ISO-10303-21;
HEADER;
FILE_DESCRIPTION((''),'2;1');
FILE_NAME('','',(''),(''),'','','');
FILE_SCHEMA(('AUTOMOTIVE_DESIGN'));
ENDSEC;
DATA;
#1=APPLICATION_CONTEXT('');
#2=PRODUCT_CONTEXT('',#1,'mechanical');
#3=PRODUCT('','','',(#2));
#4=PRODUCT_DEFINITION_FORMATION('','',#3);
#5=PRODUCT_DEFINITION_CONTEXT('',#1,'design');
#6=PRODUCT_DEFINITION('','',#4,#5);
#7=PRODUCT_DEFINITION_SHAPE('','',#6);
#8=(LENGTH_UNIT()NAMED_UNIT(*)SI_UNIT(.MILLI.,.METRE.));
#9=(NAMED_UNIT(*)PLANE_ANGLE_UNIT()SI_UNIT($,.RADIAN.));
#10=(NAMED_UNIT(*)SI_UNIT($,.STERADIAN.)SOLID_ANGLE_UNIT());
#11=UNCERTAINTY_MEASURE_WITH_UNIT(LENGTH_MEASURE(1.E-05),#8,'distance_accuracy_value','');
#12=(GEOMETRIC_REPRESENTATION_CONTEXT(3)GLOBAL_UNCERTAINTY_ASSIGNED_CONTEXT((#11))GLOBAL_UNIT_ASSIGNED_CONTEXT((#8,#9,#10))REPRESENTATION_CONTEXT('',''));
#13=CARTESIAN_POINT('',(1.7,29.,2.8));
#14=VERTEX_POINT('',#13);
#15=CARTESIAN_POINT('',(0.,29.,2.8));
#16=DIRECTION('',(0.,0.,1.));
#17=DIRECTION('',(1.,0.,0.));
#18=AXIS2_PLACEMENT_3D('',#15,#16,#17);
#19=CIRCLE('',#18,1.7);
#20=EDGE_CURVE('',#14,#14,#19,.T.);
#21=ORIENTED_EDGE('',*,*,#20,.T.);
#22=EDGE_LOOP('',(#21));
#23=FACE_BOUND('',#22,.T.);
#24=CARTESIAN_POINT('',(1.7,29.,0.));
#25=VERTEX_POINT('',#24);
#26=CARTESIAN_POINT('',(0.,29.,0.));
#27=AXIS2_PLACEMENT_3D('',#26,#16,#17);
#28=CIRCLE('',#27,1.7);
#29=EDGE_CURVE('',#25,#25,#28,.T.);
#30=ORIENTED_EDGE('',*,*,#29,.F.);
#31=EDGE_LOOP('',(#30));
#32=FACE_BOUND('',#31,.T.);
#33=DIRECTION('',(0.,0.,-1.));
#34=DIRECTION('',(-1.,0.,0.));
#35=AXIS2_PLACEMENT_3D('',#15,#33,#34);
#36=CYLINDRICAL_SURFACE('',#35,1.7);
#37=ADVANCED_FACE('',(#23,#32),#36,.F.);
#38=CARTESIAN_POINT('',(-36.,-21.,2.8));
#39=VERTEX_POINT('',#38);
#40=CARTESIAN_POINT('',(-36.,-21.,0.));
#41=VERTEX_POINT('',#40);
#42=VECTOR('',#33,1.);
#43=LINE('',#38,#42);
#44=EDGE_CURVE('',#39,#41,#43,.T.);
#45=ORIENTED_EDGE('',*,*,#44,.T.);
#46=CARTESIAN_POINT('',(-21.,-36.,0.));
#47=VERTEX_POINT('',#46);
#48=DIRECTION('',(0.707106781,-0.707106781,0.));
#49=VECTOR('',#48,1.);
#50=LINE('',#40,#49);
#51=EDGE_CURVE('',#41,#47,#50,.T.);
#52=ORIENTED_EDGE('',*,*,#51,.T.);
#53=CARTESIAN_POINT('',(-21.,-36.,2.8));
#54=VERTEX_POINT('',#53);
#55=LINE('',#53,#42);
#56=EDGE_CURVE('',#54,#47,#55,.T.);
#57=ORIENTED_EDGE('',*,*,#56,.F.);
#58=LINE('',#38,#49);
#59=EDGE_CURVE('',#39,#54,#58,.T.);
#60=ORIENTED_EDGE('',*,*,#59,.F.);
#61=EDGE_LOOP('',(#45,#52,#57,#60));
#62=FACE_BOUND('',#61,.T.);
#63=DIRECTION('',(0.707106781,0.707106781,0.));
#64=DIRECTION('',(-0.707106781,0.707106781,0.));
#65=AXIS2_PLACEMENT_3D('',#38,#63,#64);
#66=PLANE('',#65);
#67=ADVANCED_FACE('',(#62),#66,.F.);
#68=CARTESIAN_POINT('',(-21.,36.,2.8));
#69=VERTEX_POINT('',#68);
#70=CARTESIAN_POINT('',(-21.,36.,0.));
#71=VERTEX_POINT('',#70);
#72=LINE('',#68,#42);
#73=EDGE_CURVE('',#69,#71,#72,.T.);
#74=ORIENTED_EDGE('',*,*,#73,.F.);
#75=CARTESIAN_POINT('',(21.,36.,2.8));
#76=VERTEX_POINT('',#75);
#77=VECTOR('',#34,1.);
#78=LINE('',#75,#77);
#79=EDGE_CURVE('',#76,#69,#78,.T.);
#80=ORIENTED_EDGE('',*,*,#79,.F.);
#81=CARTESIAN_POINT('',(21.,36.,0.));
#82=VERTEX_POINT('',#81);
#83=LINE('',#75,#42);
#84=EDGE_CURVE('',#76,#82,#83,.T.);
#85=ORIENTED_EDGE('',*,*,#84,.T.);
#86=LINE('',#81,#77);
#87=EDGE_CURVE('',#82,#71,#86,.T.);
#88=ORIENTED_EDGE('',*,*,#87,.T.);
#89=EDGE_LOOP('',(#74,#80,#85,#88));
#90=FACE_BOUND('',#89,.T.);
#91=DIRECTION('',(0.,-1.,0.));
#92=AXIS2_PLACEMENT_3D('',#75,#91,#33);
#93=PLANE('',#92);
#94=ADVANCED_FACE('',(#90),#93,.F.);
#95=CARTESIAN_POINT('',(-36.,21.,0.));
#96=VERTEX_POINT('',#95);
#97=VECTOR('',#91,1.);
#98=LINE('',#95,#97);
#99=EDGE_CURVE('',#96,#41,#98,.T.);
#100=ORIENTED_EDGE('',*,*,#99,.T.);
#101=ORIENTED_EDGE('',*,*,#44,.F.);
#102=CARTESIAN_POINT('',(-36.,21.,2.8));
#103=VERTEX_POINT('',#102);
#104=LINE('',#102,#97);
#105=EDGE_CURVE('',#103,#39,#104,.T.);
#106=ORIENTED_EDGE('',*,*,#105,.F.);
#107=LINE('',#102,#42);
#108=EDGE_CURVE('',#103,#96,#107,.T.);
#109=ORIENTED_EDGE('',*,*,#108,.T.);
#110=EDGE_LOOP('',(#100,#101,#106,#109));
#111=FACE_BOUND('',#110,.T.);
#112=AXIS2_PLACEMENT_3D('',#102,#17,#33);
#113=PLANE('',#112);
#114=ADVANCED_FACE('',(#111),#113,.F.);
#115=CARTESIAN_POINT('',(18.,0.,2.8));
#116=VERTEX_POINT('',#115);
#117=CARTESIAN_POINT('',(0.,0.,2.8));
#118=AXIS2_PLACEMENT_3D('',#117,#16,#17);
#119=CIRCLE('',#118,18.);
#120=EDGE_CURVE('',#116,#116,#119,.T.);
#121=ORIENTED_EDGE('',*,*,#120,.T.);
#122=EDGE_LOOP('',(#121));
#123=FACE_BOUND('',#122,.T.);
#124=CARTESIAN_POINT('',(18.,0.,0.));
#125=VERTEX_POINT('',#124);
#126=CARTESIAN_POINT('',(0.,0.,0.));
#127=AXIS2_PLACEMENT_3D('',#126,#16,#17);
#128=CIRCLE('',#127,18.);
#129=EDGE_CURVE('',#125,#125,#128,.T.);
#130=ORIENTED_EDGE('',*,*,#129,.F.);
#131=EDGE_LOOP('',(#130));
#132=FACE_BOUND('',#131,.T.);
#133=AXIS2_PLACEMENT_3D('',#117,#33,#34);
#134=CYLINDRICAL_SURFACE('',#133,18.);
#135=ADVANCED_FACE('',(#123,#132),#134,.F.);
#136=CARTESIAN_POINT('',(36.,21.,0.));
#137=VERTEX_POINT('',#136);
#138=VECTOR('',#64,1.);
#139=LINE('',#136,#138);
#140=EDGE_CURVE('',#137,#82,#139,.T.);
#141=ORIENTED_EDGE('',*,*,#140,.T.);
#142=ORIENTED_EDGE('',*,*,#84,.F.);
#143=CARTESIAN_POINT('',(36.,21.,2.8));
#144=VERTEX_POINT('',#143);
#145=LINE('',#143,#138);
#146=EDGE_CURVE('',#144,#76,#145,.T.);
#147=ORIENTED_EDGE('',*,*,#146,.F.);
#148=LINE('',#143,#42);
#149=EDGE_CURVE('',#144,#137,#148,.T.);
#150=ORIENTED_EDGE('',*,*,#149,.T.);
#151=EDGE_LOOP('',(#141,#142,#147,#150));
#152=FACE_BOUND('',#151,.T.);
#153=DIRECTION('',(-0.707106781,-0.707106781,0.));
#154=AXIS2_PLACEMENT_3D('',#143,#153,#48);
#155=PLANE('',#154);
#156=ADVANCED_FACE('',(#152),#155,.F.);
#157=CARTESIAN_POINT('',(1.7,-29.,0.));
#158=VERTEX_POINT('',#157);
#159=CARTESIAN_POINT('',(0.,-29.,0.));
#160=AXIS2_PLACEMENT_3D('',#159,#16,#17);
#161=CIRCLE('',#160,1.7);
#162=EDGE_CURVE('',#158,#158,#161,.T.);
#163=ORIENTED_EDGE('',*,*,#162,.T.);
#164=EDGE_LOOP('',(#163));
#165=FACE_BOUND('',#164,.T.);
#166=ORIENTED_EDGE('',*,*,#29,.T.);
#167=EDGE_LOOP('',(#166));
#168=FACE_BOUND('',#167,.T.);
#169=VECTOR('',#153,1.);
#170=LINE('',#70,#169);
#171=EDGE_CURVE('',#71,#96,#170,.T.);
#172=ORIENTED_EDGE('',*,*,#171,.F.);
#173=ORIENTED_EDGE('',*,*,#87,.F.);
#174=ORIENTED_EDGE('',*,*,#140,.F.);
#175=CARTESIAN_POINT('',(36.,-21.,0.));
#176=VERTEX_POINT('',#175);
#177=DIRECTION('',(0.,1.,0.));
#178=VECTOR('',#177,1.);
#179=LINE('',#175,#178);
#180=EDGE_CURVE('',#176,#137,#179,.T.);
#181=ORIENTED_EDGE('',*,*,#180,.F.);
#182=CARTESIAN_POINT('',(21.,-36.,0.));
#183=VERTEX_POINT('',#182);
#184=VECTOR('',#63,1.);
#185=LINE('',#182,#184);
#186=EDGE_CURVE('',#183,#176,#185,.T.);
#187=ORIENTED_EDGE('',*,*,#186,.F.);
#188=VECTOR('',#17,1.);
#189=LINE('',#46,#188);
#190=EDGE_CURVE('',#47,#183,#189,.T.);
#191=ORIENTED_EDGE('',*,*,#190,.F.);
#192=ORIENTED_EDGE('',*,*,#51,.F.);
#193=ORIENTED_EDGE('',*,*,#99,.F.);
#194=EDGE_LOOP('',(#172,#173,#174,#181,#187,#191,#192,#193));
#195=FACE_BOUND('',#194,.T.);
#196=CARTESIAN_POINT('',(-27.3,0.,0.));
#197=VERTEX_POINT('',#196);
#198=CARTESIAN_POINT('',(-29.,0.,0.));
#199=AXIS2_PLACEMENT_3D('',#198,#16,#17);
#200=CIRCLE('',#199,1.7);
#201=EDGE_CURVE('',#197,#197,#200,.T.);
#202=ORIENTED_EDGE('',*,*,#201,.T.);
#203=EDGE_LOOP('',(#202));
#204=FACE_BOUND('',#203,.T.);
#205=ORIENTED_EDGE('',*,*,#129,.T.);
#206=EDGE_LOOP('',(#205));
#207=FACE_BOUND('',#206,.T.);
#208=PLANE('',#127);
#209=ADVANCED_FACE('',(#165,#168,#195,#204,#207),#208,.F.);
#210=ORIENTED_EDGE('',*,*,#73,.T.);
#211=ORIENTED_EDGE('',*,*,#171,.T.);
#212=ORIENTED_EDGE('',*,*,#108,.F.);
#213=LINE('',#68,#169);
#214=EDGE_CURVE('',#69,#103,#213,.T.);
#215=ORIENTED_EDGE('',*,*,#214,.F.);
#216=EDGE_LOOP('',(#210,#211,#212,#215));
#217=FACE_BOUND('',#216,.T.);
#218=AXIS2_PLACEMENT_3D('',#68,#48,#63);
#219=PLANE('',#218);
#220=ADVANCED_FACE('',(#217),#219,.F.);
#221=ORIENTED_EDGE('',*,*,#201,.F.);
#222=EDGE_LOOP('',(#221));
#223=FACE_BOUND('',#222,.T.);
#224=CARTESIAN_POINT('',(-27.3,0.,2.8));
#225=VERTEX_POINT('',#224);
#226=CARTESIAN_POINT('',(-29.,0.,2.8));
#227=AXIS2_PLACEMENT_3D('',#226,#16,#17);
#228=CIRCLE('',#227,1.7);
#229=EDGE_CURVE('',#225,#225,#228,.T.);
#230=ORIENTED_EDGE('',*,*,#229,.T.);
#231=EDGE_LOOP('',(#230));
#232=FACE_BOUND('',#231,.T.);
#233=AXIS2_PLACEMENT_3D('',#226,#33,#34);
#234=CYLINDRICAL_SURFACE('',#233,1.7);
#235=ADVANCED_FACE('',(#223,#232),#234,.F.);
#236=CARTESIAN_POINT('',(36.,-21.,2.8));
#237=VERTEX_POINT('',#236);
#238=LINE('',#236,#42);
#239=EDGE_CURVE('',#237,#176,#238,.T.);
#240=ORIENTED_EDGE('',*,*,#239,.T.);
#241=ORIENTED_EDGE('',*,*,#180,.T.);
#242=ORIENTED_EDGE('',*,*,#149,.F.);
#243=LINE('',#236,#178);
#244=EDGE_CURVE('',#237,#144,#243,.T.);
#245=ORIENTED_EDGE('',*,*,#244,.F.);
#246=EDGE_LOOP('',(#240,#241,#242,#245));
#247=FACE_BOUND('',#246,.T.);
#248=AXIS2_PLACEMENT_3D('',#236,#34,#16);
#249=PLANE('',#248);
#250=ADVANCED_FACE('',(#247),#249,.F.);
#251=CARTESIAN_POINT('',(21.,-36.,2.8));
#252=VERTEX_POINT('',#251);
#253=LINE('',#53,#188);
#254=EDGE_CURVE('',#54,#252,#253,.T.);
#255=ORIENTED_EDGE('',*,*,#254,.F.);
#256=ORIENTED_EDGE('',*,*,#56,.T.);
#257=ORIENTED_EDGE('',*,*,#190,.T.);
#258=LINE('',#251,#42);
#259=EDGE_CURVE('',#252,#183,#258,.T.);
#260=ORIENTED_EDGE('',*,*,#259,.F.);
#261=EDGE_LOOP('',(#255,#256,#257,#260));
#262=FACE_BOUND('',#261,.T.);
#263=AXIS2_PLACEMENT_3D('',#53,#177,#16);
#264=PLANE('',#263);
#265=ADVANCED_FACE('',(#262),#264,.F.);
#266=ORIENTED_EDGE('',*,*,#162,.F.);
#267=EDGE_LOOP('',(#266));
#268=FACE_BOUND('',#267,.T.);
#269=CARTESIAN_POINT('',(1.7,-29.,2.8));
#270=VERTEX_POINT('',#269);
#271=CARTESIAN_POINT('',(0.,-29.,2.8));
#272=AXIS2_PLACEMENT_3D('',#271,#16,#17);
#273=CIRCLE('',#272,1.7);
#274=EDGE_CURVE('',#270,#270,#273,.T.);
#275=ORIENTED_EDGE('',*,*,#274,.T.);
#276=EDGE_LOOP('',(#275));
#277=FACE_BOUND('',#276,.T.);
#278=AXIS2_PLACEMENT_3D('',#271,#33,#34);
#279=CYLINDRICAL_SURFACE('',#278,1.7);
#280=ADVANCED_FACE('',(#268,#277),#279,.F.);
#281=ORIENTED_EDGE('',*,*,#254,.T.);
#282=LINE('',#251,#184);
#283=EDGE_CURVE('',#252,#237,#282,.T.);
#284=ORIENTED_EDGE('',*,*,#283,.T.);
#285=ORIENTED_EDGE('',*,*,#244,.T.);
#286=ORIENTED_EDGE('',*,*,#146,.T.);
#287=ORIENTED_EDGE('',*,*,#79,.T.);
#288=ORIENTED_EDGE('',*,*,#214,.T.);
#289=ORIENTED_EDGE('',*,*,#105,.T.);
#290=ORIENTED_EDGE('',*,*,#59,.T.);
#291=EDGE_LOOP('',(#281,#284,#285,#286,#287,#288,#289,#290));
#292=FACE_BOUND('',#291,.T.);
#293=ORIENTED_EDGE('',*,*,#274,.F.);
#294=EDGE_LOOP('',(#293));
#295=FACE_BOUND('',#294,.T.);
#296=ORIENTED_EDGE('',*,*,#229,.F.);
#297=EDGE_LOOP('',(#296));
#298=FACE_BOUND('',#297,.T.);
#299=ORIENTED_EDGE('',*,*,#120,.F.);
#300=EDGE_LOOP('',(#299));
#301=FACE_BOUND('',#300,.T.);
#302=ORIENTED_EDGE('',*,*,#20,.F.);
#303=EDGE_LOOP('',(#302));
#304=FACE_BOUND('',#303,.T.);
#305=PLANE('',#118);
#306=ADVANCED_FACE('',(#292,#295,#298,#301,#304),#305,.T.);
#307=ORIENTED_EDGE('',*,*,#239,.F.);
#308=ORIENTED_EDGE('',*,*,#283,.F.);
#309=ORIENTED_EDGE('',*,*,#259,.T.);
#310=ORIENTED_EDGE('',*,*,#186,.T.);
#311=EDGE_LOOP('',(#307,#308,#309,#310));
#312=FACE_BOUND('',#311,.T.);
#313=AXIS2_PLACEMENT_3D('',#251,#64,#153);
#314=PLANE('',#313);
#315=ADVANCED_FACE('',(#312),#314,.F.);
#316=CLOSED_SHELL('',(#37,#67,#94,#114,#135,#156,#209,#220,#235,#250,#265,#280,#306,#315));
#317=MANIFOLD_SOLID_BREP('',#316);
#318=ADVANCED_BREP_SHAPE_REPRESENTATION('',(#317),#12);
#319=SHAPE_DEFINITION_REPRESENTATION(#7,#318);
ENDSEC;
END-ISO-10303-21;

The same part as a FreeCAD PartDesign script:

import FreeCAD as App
import Part
import Sketcher
from FreeCAD import Vector
Q = App.Units.Quantity

doc = App.newDocument("Part")
body = doc.addObject("PartDesign::Body", "Body")

sketch1 = body.newObject("Sketcher::SketchObject", "Sketch")
sketch1.AttachmentSupport = (doc.getObject("XY_Plane"), [""])
sketch1.MapMode = "FlatFace"
sketch1.addGeometry([
    Part.LineSegment(Vector(-21, -36, 0), Vector(21, -36, 0)),
    Part.LineSegment(Vector(21, -36, 0), Vector(36, -21, 0)),
    Part.LineSegment(Vector(36, -21, 0), Vector(36, 21, 0)),
    Part.LineSegment(Vector(36, 21, 0), Vector(21, 36, 0)),
    Part.LineSegment(Vector(21, 36, 0), Vector(-21, 36, 0)),
    Part.LineSegment(Vector(-21, 36, 0), Vector(-36, 21, 0)),
    Part.LineSegment(Vector(-36, 21, 0), Vector(-36, -21, 0)),
    Part.LineSegment(Vector(-36, -21, 0), Vector(-21, -36, 0)),
    Part.Circle(Vector(0, -29, 0), Vector(0, 0, 1), 1.7),
    Part.Circle(Vector(-29, 0, 0), Vector(0, 0, 1), 1.7),
    Part.Circle(Vector(0, 0, 0), Vector(0, 0, 1), 18),
    Part.Circle(Vector(0, 29, 0), Vector(0, 0, 1), 1.7),
], False)
sketch1.addConstraint([
    Sketcher.Constraint("Coincident", 0, 2, 1, 1),
    Sketcher.Constraint("Coincident", 1, 2, 2, 1),
    Sketcher.Constraint("Coincident", 2, 2, 3, 1),
    Sketcher.Constraint("Coincident", 3, 2, 4, 1),
    Sketcher.Constraint("Coincident", 4, 2, 5, 1),
    Sketcher.Constraint("Coincident", 5, 2, 6, 1),
    Sketcher.Constraint("Coincident", 6, 2, 7, 1),
    Sketcher.Constraint("Coincident", 7, 2, 0, 1),
    Sketcher.Constraint("Horizontal", 0),
    Sketcher.Constraint("Vertical", 2),
    Sketcher.Constraint("Horizontal", 4),
    Sketcher.Constraint("Vertical", 6),
    Sketcher.Constraint("Coincident", 10, 3, -1, 1),
    Sketcher.Constraint("Equal", 8, 9),
    Sketcher.Constraint("Equal", 9, 11),
    Sketcher.Constraint("Symmetric", 8, 3, 11, 3, -1, 1),
    Sketcher.Constraint("Symmetric", 0, 2, 4, 2, -1, 1),
    Sketcher.Constraint("Symmetric", 1, 2, 5, 2, -1, 1),
    Sketcher.Constraint("PointOnObject", 8, 3, -2),
    Sketcher.Constraint("PointOnObject", 9, 3, -1),
    Sketcher.Constraint("Perpendicular", 1, 3),
    Sketcher.Constraint("Perpendicular", 5, 7),
    Sketcher.Constraint("Horizontal", 2, 2, 5, 2),
    Sketcher.Constraint("Horizontal", 1, 2, 6, 2),
    Sketcher.Constraint("Vertical", 0, 2, 3, 2),
    Sketcher.Constraint("Equal", 4, 2),
    Sketcher.Constraint("Diameter", 10, Q("36 mm")),
    Sketcher.Constraint("Diameter", 8, Q("3.4 mm")),
    Sketcher.Constraint("DistanceX", 0, 1, 0, 2, Q("42 mm")),
    Sketcher.Constraint("DistanceY", 8, 3, -1, 1, Q("29 mm")),
    Sketcher.Constraint("DistanceX", 9, 3, -1, 1, Q("29 mm")),
    Sketcher.Constraint("DistanceY", 0, 2, -1, 1, Q("36 mm")),
])
pad1 = body.newObject("PartDesign::Pad", "Pad")
pad1.Profile = sketch1
pad1.Length = 2.8

doc.recompute()
